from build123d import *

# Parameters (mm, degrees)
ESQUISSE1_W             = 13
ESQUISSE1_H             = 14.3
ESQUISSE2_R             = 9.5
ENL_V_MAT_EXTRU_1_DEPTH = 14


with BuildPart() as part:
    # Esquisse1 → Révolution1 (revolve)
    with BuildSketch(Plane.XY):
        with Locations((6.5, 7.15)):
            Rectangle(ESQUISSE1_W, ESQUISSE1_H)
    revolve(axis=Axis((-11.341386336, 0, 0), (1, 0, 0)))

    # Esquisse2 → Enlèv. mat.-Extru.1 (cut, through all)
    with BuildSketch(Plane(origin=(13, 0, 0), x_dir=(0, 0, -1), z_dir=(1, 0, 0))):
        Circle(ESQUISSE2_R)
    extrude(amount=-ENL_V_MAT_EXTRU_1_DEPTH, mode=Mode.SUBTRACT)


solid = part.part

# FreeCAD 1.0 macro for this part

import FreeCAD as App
import Part
import Sketcher
from FreeCAD import Vector

doc = App.newDocument("Part")
params = doc.addObject("Spreadsheet::Sheet", "Params")
for row, (alias, value) in enumerate([
    ("sketch1_width", "13 mm"),
    ("sketch1_height", "14.3 mm"),
    ("revolution_angle", "360 deg"),
    ("sketch2_diameter", "19 mm"),
], start=1):
    params.set(f"A{row}", alias)
    params.set(f"B{row}", "=" + value)
    params.setAlias(f"B{row}", alias)

body = doc.addObject("PartDesign::Body", "Body")

# Sketch on XY plane
sketch1 = doc.addObject("Sketcher::SketchObject", "Sketch")
body.addObject(sketch1)
sketch1.AttachmentSupport = (doc.XY_Plane, [""])
sketch1.MapMode = "FlatFace"
sketch1.addGeometry([
    Part.LineSegment(Vector(0, 14, 0), Vector(0, 0, 0)),
    Part.LineSegment(Vector(0, 0, 0), Vector(13, 0, 0)),
    Part.LineSegment(Vector(13, 0, 0), Vector(13, 14, 0)),
    Part.LineSegment(Vector(13, 14, 0), Vector(0, 14, 0)),
], False)
sketch1.addConstraint([
    Sketcher.Constraint("Coincident", 0, 2, 1, 1),
    Sketcher.Constraint("Coincident", 1, 2, 2, 1),
    Sketcher.Constraint("Coincident", 2, 2, 3, 1),
    Sketcher.Constraint("Coincident", 3, 2, 0, 1),
    Sketcher.Constraint("Vertical", 0),
    Sketcher.Constraint("Horizontal", 1),
    Sketcher.Constraint("Vertical", 2),
    Sketcher.Constraint("Horizontal", 3),
    Sketcher.Constraint("Coincident", 0, 2, -1, 1),
    Sketcher.Constraint("DistanceX", 1, 1, 1, 2, 13.0),
    Sketcher.Constraint("DistanceY", 0, 2, 0, 1, 14.3),
])
sketch1.setExpression("Constraints[9]", "Params.sketch1_width")
sketch1.setExpression("Constraints[10]", "Params.sketch1_height")
revolution = doc.addObject("PartDesign::Revolution", "Revolution")
body.addObject(revolution)
revolution.Profile = sketch1
revolution.ReferenceAxis = (sketch1, ["H_Axis"])
revolution.setExpression("Angle", "Params.revolution_angle")

# Sketch on YZ plane
sketch2 = doc.addObject("Sketcher::SketchObject", "Sketch001")
body.addObject(sketch2)
sketch2.AttachmentSupport = (doc.YZ_Plane, [""])
sketch2.MapMode = "FlatFace"
sketch2.AttachmentOffset = App.Placement(Vector(0, 0, 13), App.Rotation())
sketch2.addGeometry(Part.Circle(Vector(0, 0, 0), Vector(0, 0, 1), 10), False)
sketch2.addConstraint([
    Sketcher.Constraint("Coincident", 0, 3, -1, 1),
    Sketcher.Constraint("Diameter", 0, 19.0),
])
sketch2.setExpression("Constraints[1]", "Params.sketch2_diameter")
pocket1 = doc.addObject("PartDesign::Pocket", "Pocket")
body.addObject(pocket1)
pocket1.Profile = sketch2
pocket1.Type = "ThroughAll"

doc.recompute()
